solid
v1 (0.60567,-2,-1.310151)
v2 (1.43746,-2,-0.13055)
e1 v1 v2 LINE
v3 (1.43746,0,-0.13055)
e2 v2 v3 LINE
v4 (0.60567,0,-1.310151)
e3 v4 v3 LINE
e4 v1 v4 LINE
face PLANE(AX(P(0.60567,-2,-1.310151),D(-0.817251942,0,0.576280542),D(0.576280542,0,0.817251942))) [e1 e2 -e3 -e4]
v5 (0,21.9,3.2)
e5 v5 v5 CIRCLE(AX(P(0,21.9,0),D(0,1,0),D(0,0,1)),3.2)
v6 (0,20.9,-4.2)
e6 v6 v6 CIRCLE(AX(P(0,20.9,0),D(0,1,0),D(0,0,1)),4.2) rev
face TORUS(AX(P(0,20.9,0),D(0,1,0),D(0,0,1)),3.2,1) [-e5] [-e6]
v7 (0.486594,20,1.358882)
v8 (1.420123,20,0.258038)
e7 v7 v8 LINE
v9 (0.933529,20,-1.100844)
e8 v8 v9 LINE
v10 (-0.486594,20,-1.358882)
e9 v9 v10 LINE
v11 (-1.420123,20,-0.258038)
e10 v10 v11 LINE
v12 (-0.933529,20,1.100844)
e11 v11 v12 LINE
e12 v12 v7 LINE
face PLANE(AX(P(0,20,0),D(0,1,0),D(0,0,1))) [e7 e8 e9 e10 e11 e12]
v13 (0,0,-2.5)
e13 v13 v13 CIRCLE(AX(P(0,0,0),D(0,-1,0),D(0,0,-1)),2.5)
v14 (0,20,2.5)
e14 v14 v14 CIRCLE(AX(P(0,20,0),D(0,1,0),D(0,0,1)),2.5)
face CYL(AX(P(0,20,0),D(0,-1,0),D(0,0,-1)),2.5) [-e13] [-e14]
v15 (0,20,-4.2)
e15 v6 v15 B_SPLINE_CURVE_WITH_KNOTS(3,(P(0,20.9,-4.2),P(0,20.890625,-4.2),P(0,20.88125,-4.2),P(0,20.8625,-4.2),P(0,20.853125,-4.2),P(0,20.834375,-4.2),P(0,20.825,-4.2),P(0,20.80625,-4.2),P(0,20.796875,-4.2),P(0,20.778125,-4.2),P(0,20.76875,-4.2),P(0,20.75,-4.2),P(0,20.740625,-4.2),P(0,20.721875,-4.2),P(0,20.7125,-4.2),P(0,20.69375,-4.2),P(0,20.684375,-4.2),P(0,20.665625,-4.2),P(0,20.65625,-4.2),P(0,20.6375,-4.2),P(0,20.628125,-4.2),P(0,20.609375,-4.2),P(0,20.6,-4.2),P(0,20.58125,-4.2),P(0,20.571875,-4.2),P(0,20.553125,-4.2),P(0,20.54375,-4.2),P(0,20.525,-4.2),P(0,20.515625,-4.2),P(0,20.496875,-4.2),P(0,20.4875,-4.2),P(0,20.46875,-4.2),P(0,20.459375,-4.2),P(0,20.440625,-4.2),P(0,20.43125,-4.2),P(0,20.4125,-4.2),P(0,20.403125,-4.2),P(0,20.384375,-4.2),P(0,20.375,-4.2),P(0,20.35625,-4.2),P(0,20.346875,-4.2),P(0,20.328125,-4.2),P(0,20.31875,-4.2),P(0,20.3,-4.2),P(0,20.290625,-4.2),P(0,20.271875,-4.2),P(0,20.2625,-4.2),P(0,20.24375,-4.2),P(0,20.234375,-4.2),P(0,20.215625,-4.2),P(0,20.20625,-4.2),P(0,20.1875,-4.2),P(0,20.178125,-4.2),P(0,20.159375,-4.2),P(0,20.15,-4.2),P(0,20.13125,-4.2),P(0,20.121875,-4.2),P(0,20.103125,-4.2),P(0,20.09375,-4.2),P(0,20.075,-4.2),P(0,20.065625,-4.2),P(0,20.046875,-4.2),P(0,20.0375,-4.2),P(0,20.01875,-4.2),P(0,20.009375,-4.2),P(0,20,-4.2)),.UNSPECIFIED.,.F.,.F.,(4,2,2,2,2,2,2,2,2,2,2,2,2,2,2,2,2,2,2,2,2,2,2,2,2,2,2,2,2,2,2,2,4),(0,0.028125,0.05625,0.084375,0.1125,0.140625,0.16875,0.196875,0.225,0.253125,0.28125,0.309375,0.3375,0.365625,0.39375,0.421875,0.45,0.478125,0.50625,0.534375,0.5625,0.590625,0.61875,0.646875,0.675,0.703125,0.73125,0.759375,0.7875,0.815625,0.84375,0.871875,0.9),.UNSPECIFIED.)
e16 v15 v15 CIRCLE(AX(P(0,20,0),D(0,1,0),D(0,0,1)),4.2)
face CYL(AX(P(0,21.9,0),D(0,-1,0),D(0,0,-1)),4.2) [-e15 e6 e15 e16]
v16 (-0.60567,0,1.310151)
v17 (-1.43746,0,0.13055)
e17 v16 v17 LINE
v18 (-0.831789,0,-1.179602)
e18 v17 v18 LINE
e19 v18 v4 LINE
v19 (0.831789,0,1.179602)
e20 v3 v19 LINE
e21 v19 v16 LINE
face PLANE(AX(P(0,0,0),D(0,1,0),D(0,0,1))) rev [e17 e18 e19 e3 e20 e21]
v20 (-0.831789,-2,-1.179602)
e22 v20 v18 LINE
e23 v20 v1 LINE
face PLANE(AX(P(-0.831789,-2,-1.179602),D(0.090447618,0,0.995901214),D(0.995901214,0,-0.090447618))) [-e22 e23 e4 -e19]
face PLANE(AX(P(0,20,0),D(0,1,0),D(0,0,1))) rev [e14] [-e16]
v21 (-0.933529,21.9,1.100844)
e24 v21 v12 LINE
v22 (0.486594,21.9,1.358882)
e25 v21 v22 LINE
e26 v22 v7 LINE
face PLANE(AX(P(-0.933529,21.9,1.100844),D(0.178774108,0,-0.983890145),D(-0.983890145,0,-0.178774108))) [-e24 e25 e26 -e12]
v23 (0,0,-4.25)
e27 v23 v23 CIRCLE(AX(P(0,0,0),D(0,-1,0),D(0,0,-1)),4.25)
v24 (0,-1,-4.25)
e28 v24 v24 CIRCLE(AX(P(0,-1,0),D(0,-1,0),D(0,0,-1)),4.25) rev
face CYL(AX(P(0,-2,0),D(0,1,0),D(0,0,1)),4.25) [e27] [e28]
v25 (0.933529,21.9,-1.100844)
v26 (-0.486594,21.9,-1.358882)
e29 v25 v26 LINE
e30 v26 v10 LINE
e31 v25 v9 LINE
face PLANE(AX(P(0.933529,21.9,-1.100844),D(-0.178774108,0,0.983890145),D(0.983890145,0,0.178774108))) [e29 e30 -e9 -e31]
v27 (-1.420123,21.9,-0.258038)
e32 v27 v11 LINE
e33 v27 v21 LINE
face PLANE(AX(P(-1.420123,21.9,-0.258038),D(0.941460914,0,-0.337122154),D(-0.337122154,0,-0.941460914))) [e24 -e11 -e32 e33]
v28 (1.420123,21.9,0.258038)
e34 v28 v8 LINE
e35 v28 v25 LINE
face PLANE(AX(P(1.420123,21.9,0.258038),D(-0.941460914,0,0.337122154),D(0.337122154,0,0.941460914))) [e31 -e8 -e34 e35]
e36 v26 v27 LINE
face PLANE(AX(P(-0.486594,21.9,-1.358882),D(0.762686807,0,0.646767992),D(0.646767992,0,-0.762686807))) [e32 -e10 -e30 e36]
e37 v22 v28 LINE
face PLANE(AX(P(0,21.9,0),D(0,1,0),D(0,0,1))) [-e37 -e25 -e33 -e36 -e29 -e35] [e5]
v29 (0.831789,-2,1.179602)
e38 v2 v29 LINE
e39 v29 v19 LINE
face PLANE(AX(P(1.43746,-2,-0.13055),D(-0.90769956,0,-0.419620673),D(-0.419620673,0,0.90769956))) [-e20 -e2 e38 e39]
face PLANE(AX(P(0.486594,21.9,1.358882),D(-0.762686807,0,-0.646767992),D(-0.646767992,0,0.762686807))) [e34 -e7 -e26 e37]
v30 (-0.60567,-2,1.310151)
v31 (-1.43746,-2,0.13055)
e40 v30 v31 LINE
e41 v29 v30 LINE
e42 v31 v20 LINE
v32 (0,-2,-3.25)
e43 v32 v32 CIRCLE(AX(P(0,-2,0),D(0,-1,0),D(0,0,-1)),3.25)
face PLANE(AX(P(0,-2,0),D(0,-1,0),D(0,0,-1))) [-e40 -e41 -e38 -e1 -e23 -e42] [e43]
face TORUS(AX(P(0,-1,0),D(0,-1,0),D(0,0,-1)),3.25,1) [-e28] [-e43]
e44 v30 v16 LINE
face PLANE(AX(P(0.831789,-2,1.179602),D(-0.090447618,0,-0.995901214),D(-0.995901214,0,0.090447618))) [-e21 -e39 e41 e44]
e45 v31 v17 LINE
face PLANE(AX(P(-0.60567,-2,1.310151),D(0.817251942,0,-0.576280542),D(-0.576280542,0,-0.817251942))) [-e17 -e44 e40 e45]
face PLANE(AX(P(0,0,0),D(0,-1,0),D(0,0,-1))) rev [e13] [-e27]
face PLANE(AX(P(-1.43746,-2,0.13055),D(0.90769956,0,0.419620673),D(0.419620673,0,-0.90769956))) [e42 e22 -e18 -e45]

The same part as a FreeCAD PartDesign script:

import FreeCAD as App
import Part
import Sketcher

V = App.Vector


def edges_at(feature, points):
    """Names of the edges that pass closest to the given points."""
    edges = feature.Shape.Edges
    near = lambda p: min(range(len(edges)), key=lambda i: edges[i].distToShape(Part.Vertex(*p))[0])
    return sorted({f"Edge{near(p) + 1}" for p in points})


def add_polygon(sketch, points):
    """Adds a closed chain of lines whose ends are joined by coincident constraints."""
    first, n = sketch.GeometryCount, len(points)
    for a, b in zip(points, points[1:] + points[:1]):
        sketch.addGeometry(Part.LineSegment(App.Vector(*a, 0), App.Vector(*b, 0)), False)
    for i in range(n):
        sketch.addConstraint(Sketcher.Constraint("Coincident", first + i, 2, first + (i + 1) % n, 1))

doc = App.newDocument("Part")
body = doc.addObject("PartDesign::Body", "Body")

# Sketch on XZ plane
sketch1 = body.newObject("Sketcher::SketchObject", "Sketch")
sketch1.AttachmentSupport = (doc.getObject("XZ_Plane"), [""])
sketch1.MapMode = "FlatFace"
sketch1.addGeometry(Part.Circle(V(0, 0, 0), V(0, 0, 1), 2.5), False)
sketch1.addConstraint(Sketcher.Constraint("Coincident", 0, 3, -1, 1))
sketch1.addConstraint(Sketcher.Constraint("Diameter", 0, 5.0))
pad1 = body.newObject("PartDesign::Pad", "Pad")
pad1.Profile = sketch1
pad1.Length = 20
pad1.Reversed = True

# Sketch on XZ plane
sketch2 = body.newObject("Sketcher::SketchObject", "Sketch001")
sketch2.AttachmentSupport = (doc.getObject("XZ_Plane"), [""])
sketch2.MapMode = "FlatFace"
sketch2.AttachmentOffset = App.Placement(V(0, 0, -20), App.Rotation())
sketch2.addGeometry(Part.Circle(V(0, 0, 0), V(0, 0, 1), 4.2), False)  # 0
add_polygon(sketch2, [(-0.486594, -1.358882), (0.933529, -1.100844), (1.420123, 0.258038), (0.486594, 1.358882), (-0.933529, 1.100844), (-1.420123, -0.258038)])  # lines 1-6
sketch2.addConstraint(Sketcher.Constraint("Coincident", 0, 3, -1, 1))
sketch2.addConstraint(Sketcher.Constraint("Symmetric", 1, 2, 4, 2, -1, 1))
sketch2.addConstraint(Sketcher.Constraint("Symmetric", 2, 2, 5, 2, -1, 1))
sketch2.addConstraint(Sketcher.Constraint("Symmetric", 3, 2, 6, 2, -1, 1))
sketch2.addConstraint(Sketcher.Constraint("Equal", 1, 2))
sketch2.addConstraint(Sketcher.Constraint("Equal", 2, 3))
sketch2.addConstraint(Sketcher.Constraint("Diameter", 0, 8.4))
sketch2.addConstraint(Sketcher.Constraint("DistanceX", -1, 1, 1, 2, 0.933529))
sketch2.addConstraint(Sketcher.Constraint("DistanceY", -1, 1, 2, 2, 0.258038))
sketch2.addConstraint(Sketcher.Constraint("DistanceY", -1, 1, 3, 2, 1.358882))
sketch2.addConstraint(Sketcher.Constraint("DistanceY", 1, 2, 2, 2, 1.358882))
pad2 = body.newObject("PartDesign::Pad", "Pad001")
pad2.Profile = sketch2
pad2.Length = 1.9
pad2.Reversed = True

# Sketch on XZ plane
sketch3 = body.newObject("Sketcher::SketchObject", "Sketch002")
sketch3.AttachmentSupport = (doc.getObject("XZ_Plane"), [""])
sketch3.MapMode = "FlatFace"
sketch3.addGeometry(Part.Circle(V(0, 0, 0), V(0, 0, 1), 4.25), False)  # 0
add_polygon(sketch3, [(-0.60567, 1.310151), (0.831789, 1.179602), (1.43746, -0.13055), (0.60567, -1.310151), (-0.831789, -1.179602), (-1.43746, 0.13055)])  # lines 1-6
sketch3.addConstraint(Sketcher.Constraint("Coincident", 0, 3, -1, 1))
sketch3.addConstraint(Sketcher.Constraint("Symmetric", 1, 2, 4, 2, -1, 1))
sketch3.addConstraint(Sketcher.Constraint("Symmetric", 2, 2, 5, 2, -1, 1))
sketch3.addConstraint(Sketcher.Constraint("Symmetric", 3, 2, 6, 2, -1, 1))
sketch3.addConstraint(Sketcher.Constraint("Equal", 1, 2))
sketch3.addConstraint(Sketcher.Constraint("Equal", 2, 3))
sketch3.addConstraint(Sketcher.Constraint("Diameter", 0, 8.5))
sketch3.addConstraint(Sketcher.Constraint("DistanceY", -1, 1, 1, 2, 1.179602))
sketch3.addConstraint(Sketcher.Constraint("DistanceY", 3, 2, 2, 2, 1.179602))
sketch3.addConstraint(Sketcher.Constraint("DistanceY", 3, 2, 5, 2, 1.440701))
sketch3.addConstraint(Sketcher.Constraint("DistanceX", -1, 1, 1, 2, 0.831789))
pad3 = body.newObject("PartDesign::Pad", "Pad002")
pad3.Profile = sketch3
pad3.Length = 2
doc.recompute()

fillet = body.newObject("PartDesign::Fillet", "Fillet")
fillet.Base = (pad3, edges_at(pad3, [(0, 21.9, 4.2), (0, -2, 4.25)]))
fillet.Radius = 1

doc.recompute()
